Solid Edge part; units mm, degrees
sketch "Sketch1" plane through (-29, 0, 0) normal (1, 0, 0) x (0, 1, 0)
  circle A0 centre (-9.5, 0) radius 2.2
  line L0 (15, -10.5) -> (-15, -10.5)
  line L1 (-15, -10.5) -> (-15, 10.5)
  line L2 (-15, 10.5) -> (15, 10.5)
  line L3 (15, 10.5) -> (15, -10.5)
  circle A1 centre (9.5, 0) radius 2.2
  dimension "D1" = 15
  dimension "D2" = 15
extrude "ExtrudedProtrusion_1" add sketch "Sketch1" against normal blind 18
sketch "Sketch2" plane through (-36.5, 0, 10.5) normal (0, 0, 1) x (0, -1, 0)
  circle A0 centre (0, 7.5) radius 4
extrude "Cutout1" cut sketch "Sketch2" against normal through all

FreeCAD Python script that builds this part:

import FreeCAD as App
import Part
import Sketcher
from FreeCAD import Vector

doc = App.newDocument("Part")
body = doc.addObject("PartDesign::Body", "Body")

# Sketch on YZ plane
sketch1 = doc.addObject("Sketcher::SketchObject", "Sketch")
body.addObject(sketch1)
sketch1.AttachmentSupport = (doc.YZ_Plane, [""])
sketch1.MapMode = "FlatFace"
sketch1.AttachmentOffset = App.Placement(Vector(0, 0, -29), App.Rotation())
sketch1.addGeometry(Part.LineSegment(Vector(-15, -10.5, 0), Vector(15, -10.5, 0)), False)
sketch1.addGeometry(Part.LineSegment(Vector(15, -10.5, 0), Vector(15, 10.5, 0)), False)
sketch1.addGeometry(Part.LineSegment(Vector(15, 10.5, 0), Vector(-15, 10.5, 0)), False)
sketch1.addGeometry(Part.LineSegment(Vector(-15, 10.5, 0), Vector(-15, -10.5, 0)), False)
sketch1.addGeometry(Part.Circle(Vector(-9.5, 0, 0), Vector(0, 0, 1), 2.2), False)
sketch1.addGeometry(Part.Circle(Vector(9.5, 0, 0), Vector(0, 0, 1), 2.2), False)
sketch1.addConstraint(Sketcher.Constraint("Coincident", 0, 2, 1, 1))
sketch1.addConstraint(Sketcher.Constraint("Coincident", 1, 2, 2, 1))
sketch1.addConstraint(Sketcher.Constraint("Coincident", 2, 2, 3, 1))
sketch1.addConstraint(Sketcher.Constraint("Coincident", 3, 2, 0, 1))
sketch1.addConstraint(Sketcher.Constraint("Horizontal", 0))
sketch1.addConstraint(Sketcher.Constraint("Vertical", 1))
sketch1.addConstraint(Sketcher.Constraint("Horizontal", 2))
sketch1.addConstraint(Sketcher.Constraint("Vertical", 3))
sketch1.addConstraint(Sketcher.Constraint("Equal", 4, 5))
sketch1.addConstraint(Sketcher.Constraint("Symmetric", 4, 3, 5, 3, -1, 1))
sketch1.addConstraint(Sketcher.Constraint("Symmetric", 0, 2, 2, 2, -1, 1))
sketch1.addConstraint(Sketcher.Constraint("PointOnObject", 4, 3, -1))
sketch1.addConstraint(Sketcher.Constraint("DistanceX", -1, 1, 0, 2, 15.0))
sketch1.addConstraint(Sketcher.Constraint("Diameter", 4, 4.4))
sketch1.addConstraint(Sketcher.Constraint("DistanceY", 1, 1, 1, 2, 21.0))
sketch1.addConstraint(Sketcher.Constraint("DistanceX", 4, 3, 5, 3, 19.0))
pad1 = doc.addObject("PartDesign::Pad", "Pad")
body.addObject(pad1)
pad1.Profile = sketch1
pad1.Length = 18
pad1.Reversed = True

# Sketch on XY plane
sketch2 = doc.addObject("Sketcher::SketchObject", "Sketch001")
body.addObject(sketch2)
sketch2.AttachmentSupport = (doc.XY_Plane, [""])
sketch2.MapMode = "FlatFace"
sketch2.AttachmentOffset = App.Placement(Vector(0, 0, 10.5), App.Rotation())
sketch2.addGeometry(Part.Circle(Vector(-29, 0, 0), Vector(0, 0, 1), 4), False)
sketch2.addConstraint(Sketcher.Constraint("PointOnObject", 0, 3, -1))
sketch2.addConstraint(Sketcher.Constraint("Diameter", 0, 8.0))
sketch2.addConstraint(Sketcher.Constraint("DistanceX", 0, 3, -1, 1, 29.0))
pocket1 = doc.addObject("PartDesign::Pocket", "Pocket")
body.addObject(pocket1)
pocket1.Profile = sketch2
pocket1.Type = "ThroughAll"

doc.recompute()
